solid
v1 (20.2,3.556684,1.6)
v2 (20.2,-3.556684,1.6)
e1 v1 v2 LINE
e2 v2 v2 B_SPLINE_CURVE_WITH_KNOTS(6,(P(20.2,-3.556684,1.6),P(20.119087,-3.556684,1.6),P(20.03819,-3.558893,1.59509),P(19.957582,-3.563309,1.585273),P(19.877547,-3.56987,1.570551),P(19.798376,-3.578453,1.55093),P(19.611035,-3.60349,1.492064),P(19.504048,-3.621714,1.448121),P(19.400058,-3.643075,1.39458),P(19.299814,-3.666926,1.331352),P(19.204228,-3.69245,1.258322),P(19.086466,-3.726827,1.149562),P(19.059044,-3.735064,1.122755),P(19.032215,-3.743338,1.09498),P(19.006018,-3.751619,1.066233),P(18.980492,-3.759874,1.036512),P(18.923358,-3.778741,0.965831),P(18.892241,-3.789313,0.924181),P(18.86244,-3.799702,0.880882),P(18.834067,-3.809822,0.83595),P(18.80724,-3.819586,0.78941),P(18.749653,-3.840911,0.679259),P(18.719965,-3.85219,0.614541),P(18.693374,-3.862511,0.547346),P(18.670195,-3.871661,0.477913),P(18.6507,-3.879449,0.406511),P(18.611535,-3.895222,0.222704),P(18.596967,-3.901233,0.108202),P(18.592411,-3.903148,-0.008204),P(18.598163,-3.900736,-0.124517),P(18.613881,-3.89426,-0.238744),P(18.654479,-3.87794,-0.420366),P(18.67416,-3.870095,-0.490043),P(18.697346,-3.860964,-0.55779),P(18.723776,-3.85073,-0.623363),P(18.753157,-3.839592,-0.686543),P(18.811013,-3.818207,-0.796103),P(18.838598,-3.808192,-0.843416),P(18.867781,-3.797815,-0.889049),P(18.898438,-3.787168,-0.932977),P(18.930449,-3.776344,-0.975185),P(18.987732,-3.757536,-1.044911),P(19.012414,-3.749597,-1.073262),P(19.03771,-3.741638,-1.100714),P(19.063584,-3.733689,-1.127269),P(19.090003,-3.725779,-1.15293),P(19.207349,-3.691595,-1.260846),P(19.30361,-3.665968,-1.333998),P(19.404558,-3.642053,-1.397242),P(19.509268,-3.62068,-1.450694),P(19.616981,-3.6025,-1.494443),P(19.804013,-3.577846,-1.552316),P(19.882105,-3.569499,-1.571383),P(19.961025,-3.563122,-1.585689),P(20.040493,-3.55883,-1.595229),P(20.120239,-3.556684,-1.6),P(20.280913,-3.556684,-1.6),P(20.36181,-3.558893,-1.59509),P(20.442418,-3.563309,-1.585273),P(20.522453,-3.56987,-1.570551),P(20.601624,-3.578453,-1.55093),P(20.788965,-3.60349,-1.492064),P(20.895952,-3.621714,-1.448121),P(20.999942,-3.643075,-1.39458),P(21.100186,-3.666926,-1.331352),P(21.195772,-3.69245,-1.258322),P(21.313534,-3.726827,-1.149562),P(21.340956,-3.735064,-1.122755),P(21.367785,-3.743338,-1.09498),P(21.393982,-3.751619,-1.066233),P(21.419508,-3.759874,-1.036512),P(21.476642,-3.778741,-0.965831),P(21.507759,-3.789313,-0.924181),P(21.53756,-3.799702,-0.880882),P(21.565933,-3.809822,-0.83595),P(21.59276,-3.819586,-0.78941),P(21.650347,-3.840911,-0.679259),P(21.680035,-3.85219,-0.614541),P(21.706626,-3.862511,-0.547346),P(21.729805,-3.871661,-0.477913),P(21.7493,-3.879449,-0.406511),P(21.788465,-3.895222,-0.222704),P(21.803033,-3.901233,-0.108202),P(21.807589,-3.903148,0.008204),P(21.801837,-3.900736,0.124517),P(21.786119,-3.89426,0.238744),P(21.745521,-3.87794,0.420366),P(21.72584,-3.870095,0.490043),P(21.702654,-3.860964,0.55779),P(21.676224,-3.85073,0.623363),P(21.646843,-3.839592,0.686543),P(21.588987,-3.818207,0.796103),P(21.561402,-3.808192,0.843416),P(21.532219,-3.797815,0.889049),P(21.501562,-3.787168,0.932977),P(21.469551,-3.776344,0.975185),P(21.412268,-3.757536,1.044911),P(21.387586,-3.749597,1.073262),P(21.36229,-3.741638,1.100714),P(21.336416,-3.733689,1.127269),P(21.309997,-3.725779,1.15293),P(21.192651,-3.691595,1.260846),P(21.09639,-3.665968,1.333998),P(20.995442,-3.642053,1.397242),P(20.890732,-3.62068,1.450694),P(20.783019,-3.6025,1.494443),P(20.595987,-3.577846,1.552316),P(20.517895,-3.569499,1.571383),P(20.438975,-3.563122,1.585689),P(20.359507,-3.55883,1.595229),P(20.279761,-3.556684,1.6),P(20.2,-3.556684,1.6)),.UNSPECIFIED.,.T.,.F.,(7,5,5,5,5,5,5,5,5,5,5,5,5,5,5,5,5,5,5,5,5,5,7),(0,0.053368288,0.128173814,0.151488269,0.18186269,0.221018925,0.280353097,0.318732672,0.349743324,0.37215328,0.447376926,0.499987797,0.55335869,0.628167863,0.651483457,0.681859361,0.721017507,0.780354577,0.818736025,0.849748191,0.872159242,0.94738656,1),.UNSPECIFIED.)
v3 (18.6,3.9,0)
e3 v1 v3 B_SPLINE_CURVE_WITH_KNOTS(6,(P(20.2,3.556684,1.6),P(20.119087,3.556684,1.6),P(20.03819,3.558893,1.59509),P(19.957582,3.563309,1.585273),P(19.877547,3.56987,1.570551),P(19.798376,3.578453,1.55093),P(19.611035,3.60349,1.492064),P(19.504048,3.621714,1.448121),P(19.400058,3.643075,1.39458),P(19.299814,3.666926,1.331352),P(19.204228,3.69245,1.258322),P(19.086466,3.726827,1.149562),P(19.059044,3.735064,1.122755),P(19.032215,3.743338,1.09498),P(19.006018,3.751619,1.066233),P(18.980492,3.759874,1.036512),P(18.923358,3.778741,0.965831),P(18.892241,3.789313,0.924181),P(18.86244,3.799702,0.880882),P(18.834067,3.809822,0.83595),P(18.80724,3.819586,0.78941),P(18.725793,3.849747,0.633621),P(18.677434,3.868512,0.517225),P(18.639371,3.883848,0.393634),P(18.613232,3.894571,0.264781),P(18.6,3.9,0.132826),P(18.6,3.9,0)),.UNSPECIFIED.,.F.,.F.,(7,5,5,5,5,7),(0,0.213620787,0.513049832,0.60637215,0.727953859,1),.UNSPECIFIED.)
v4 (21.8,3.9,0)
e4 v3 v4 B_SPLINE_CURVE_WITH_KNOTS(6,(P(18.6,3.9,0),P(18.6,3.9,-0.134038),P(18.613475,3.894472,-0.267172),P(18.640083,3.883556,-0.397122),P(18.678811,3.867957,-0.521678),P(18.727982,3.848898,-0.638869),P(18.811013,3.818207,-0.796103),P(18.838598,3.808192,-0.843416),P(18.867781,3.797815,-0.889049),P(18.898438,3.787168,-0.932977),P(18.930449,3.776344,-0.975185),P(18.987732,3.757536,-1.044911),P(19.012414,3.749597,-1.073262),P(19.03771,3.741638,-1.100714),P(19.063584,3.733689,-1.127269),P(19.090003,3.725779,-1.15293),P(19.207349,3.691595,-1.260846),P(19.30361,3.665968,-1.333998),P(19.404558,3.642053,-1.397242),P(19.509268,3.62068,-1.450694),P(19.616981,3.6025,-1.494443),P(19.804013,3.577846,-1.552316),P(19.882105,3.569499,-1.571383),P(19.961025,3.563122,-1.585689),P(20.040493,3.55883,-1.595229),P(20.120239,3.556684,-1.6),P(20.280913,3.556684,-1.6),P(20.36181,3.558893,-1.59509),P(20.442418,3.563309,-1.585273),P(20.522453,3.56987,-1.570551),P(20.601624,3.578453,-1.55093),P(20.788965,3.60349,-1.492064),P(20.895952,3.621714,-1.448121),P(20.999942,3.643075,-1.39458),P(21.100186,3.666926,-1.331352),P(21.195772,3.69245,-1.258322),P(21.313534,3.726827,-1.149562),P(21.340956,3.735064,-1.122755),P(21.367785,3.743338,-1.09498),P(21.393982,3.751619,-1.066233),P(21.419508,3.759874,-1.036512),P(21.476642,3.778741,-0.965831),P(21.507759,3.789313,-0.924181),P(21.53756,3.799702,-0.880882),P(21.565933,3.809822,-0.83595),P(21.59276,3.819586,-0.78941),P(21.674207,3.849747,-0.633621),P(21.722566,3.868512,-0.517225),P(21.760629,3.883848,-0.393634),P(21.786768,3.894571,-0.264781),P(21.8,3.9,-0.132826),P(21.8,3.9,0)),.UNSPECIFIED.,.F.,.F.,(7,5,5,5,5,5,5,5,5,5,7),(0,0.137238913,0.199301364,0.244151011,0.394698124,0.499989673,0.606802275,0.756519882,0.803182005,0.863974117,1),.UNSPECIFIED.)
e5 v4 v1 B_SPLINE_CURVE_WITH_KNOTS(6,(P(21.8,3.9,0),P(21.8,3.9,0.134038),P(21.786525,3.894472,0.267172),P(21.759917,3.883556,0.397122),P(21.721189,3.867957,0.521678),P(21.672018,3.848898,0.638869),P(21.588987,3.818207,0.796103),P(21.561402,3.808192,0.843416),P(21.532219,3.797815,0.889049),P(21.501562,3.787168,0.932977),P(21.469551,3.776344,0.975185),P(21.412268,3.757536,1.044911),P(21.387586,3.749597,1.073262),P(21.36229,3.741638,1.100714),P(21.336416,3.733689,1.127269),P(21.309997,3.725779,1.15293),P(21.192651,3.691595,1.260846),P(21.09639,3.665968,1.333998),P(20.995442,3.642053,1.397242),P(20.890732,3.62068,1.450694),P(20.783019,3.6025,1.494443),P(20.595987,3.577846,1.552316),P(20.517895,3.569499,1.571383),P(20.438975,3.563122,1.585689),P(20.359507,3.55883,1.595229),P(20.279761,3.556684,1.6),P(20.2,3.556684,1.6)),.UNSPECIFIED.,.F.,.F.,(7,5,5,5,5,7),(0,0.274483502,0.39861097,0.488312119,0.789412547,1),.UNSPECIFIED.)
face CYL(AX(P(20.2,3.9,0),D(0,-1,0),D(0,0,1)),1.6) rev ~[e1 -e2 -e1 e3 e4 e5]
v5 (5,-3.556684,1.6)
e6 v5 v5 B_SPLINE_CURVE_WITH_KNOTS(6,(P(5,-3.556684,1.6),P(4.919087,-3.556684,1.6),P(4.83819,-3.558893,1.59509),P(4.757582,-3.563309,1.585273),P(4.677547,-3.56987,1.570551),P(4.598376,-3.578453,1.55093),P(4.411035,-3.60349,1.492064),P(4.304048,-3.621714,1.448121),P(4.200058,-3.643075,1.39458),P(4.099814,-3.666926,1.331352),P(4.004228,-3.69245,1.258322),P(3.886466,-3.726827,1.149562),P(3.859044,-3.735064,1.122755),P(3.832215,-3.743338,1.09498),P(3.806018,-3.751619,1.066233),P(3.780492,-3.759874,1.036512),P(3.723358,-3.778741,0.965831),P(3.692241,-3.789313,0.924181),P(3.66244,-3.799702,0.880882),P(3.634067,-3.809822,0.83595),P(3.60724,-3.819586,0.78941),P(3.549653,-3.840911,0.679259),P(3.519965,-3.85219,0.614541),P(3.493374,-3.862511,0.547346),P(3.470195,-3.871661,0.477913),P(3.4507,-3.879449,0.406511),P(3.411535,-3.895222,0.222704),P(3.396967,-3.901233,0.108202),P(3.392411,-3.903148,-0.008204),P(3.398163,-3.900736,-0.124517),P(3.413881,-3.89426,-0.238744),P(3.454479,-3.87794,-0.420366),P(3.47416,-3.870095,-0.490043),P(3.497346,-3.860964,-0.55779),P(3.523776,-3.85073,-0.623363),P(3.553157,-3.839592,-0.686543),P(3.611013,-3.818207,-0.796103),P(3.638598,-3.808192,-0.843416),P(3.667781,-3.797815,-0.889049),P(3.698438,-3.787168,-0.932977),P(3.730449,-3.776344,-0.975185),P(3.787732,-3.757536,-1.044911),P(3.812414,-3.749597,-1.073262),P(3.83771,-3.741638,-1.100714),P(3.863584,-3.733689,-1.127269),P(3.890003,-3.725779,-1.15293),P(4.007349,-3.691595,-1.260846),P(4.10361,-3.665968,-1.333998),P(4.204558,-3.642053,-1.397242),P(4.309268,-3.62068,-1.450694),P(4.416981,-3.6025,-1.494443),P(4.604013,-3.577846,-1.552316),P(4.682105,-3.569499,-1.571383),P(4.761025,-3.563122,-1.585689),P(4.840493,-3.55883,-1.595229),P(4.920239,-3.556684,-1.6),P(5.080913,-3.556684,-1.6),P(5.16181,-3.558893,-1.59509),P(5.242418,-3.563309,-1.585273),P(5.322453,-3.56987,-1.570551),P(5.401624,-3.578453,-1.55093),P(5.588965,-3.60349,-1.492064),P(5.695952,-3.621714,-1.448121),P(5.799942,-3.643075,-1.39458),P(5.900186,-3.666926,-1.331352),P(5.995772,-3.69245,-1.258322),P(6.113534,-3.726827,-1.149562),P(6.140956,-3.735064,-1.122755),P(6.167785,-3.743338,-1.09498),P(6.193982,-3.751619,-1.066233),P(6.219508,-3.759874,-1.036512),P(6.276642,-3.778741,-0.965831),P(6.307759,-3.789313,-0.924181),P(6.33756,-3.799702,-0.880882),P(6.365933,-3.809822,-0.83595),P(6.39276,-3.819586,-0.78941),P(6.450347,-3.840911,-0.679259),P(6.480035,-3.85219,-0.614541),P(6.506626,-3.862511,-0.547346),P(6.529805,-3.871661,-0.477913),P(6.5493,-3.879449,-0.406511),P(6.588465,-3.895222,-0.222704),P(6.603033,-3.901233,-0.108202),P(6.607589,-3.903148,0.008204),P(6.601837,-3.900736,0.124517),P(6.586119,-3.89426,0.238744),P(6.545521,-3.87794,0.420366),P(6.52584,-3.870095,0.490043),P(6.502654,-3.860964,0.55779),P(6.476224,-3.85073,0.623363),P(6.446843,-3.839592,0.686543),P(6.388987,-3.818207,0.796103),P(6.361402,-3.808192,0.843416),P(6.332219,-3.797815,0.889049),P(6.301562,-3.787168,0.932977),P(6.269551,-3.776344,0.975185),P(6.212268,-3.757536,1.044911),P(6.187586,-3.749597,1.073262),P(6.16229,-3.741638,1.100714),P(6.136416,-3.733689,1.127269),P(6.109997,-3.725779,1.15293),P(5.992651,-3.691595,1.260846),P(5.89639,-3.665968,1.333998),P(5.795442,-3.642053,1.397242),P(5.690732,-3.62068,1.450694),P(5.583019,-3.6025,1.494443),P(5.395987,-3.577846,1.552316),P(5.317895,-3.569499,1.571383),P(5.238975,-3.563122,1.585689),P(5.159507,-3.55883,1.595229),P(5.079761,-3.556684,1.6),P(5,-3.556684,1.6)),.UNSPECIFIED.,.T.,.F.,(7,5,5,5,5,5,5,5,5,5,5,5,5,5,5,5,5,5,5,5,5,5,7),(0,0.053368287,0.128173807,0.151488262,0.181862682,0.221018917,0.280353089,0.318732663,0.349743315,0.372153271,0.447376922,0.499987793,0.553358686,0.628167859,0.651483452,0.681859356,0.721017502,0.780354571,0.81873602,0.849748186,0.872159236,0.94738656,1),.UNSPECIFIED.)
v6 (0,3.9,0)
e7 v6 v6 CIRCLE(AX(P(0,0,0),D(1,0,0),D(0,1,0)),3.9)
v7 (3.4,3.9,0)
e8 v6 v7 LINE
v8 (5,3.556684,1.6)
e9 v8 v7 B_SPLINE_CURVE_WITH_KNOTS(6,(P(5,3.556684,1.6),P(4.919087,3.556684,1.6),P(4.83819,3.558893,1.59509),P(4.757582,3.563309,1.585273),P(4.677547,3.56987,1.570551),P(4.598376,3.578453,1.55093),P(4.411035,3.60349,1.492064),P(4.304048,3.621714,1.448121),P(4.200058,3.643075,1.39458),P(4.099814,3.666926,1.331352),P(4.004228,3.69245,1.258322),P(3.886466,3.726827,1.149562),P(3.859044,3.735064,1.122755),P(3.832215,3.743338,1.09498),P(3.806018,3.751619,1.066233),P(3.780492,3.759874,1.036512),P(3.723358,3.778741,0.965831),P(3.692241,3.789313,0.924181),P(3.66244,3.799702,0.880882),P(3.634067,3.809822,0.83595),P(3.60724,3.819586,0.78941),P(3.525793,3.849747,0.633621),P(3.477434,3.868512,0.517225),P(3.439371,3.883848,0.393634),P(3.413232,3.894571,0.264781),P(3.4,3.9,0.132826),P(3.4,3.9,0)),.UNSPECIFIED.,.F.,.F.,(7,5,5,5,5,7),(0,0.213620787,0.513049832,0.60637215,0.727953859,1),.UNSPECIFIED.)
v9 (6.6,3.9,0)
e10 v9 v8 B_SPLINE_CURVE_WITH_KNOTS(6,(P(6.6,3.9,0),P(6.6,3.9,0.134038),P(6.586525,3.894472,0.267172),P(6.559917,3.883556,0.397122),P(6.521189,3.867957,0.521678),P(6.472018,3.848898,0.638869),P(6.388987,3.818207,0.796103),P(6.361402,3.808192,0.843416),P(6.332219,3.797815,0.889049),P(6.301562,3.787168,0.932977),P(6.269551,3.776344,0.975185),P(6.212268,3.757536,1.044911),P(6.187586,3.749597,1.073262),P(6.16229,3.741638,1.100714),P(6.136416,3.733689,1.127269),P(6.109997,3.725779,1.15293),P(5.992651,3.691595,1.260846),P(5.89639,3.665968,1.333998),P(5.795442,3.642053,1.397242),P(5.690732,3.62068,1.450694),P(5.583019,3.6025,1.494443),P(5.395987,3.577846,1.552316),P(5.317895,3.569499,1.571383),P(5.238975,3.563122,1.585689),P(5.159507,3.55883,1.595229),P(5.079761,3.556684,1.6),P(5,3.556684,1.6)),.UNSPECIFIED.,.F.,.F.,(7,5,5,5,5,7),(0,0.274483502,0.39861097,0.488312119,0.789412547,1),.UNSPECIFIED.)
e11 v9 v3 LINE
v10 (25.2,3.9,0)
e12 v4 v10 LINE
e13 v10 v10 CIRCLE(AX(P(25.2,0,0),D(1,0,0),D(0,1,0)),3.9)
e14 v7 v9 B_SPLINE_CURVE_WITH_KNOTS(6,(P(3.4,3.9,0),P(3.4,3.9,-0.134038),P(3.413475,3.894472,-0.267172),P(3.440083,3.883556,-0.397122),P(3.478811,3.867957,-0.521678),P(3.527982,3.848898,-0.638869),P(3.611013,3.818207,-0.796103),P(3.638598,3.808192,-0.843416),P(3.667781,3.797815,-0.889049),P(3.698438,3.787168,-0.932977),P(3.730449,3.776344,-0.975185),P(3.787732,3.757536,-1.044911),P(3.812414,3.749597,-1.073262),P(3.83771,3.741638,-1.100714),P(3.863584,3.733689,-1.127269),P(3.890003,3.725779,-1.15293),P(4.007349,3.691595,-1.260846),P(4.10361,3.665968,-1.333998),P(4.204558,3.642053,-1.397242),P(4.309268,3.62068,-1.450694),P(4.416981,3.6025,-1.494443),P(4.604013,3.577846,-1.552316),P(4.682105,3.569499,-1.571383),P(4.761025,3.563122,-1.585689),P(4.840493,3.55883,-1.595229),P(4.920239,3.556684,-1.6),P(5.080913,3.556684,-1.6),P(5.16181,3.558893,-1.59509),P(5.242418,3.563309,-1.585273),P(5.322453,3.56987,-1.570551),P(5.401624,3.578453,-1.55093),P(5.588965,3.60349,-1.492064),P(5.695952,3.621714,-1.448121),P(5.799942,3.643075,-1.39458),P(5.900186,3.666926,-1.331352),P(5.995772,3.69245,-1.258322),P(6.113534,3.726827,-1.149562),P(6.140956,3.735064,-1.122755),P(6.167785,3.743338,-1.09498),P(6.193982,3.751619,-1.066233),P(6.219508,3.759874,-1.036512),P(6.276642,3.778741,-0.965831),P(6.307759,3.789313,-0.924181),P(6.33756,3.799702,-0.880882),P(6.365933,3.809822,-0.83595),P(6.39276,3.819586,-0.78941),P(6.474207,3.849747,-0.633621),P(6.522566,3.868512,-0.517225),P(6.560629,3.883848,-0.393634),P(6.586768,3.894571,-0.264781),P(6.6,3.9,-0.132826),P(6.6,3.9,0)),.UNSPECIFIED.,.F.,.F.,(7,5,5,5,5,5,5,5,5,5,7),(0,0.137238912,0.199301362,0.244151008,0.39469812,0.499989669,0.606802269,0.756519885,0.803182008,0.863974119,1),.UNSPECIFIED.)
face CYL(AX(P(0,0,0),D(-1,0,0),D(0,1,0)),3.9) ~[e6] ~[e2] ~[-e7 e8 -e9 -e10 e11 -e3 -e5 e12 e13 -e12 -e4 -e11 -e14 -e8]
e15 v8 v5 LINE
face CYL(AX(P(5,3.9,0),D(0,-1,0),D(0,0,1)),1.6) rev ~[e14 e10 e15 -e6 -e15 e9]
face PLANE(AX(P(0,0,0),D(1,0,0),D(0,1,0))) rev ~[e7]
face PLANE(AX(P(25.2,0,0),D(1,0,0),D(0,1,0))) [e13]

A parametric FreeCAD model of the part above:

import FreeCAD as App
import Part
import Sketcher
from FreeCAD import Vector
Q = App.Units.Quantity

doc = App.newDocument("Part")
body = doc.addObject("PartDesign::Body", "Body")

sketch1 = body.newObject("Sketcher::SketchObject", "Sketch")
sketch1.AttachmentSupport = (doc.getObject("YZ_Plane"), [""])
sketch1.MapMode = "FlatFace"
sketch1.addGeometry(Part.Circle(Vector(0, 0, 0), Vector(0, 0, 1), 3.9), False)
sketch1.addConstraint(Sketcher.Constraint("Coincident", 0, 3, -1, 1))
sketch1.addConstraint(Sketcher.Constraint("Diameter", 0, Q("7.8 mm")))
pad1 = body.newObject("PartDesign::Pad", "Pad")
pad1.Profile = sketch1
pad1.Length = 25.2

sketch2 = body.newObject("Sketcher::SketchObject", "Sketch001")
sketch2.AttachmentSupport = (doc.getObject("XZ_Plane"), [""])
sketch2.MapMode = "FlatFace"
sketch2.AttachmentOffset = App.Placement(Vector(0, 0, -3.9), App.Rotation())
sketch2.addGeometry(Part.Circle(Vector(5, 0, 0), Vector(0, 0, 1), 1.6), False)
sketch2.addGeometry(Part.Circle(Vector(20.2, 0, 0), Vector(0, 0, 1), 1.6), False)
sketch2.addConstraint(Sketcher.Constraint("Equal", 0, 1))
sketch2.addConstraint(Sketcher.Constraint("PointOnObject", 0, 3, -1))
sketch2.addConstraint(Sketcher.Constraint("PointOnObject", 1, 3, -1))
sketch2.addConstraint(Sketcher.Constraint("Diameter", 0, Q("3.2 mm")))
sketch2.addConstraint(Sketcher.Constraint("DistanceX", -1, 1, 0, 3, Q("5 mm")))
sketch2.addConstraint(Sketcher.Constraint("DistanceX", -1, 1, 1, 3, Q("20.2 mm")))
doc.recompute()
hole = body.newObject("PartDesign::Hole", "Hole")
hole.Profile = sketch2
hole.ThreadType = "None"
hole.Diameter = 3.2
hole.DepthType = "ThroughAll"
hole.Reversed = True

doc.recompute()
